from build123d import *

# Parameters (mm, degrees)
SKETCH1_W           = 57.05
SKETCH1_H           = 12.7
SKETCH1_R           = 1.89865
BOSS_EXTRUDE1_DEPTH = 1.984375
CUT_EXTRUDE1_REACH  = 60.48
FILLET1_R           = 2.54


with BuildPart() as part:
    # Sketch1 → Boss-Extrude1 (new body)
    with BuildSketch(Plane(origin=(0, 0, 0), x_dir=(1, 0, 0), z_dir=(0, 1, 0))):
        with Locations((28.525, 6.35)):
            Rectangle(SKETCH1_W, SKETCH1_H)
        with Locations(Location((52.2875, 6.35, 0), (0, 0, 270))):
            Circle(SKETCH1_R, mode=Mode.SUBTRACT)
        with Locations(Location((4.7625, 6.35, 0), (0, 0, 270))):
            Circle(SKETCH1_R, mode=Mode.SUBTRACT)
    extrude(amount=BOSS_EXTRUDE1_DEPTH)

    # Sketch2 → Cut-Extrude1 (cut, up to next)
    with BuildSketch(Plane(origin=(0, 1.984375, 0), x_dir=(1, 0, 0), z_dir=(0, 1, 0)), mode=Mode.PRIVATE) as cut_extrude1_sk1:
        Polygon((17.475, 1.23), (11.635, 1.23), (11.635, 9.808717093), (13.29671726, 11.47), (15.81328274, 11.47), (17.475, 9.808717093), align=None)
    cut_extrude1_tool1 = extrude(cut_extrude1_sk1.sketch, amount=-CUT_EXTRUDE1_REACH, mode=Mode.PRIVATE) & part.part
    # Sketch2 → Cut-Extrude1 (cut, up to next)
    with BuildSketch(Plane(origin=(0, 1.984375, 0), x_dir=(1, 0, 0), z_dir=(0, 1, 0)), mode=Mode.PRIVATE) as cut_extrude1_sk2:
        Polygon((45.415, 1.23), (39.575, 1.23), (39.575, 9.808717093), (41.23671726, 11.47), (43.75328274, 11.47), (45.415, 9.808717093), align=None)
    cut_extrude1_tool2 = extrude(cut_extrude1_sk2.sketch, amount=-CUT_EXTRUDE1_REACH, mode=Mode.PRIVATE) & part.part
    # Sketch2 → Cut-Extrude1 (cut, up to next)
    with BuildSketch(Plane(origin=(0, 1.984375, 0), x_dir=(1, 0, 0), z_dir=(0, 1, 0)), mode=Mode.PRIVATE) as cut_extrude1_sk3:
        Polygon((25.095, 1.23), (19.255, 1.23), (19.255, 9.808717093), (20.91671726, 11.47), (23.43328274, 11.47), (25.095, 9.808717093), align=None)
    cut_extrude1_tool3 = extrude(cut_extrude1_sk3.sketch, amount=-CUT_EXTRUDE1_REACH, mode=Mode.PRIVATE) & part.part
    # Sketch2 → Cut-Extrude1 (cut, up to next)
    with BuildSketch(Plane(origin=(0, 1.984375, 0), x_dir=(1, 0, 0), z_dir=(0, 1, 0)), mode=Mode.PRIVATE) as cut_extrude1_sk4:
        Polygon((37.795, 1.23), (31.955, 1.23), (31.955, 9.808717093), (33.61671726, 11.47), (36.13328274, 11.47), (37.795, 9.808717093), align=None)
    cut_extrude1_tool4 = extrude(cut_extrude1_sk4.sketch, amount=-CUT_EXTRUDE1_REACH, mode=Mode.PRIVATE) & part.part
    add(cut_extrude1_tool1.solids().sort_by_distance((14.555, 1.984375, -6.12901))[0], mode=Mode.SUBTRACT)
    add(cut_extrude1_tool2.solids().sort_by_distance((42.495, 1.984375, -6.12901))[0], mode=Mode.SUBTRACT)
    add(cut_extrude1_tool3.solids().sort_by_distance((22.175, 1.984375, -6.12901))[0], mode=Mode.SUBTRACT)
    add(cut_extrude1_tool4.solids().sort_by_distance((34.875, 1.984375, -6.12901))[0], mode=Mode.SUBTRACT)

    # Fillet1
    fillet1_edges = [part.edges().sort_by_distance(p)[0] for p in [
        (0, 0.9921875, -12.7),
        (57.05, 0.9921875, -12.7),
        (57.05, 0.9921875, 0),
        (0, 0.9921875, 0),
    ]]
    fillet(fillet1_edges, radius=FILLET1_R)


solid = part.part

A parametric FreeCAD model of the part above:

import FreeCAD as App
import Part
import Sketcher
from FreeCAD import Vector
Q = App.Units.Quantity


def edges_at(feature, points):
    """Names of the edges that pass closest to the given points."""
    edges = feature.Shape.Edges
    near = lambda p: min(range(len(edges)), key=lambda i: edges[i].distToShape(Part.Vertex(*p))[0])
    return sorted({f"Edge{near(p) + 1}" for p in points})


def add_polygon(sketch, points):
    """Adds a closed chain of lines whose ends are joined by coincident constraints."""
    first, n = sketch.GeometryCount, len(points)
    for a, b in zip(points, points[1:] + points[:1]):
        sketch.addGeometry(Part.LineSegment(App.Vector(*a, 0), App.Vector(*b, 0)), False)
    for i in range(n):
        sketch.addConstraint(Sketcher.Constraint("Coincident", first + i, 2, first + (i + 1) % n, 1))

doc = App.newDocument("Part")
params = doc.addObject("Spreadsheet::Sheet", "Params")
for row, (alias, value) in enumerate([
    ("sketch1_height", "0.5 in"),
    ("pad1_length", "0.078125 in"),
    ("fillet_radius", "0.1 in"),
], start=1):
    params.set(f"A{row}", alias)
    params.set(f"B{row}", "=" + value)
    params.setAlias(f"B{row}", alias)

body = doc.addObject("PartDesign::Body", "Body")

# Sketch on XZ plane
sketch1 = body.newObject("Sketcher::SketchObject", "Sketch")
sketch1.AttachmentSupport = (doc.getObject("XZ_Plane"), [""])
sketch1.MapMode = "FlatFace"
add_polygon(sketch1, [(0, -12.7), (0, 0), (57, 0), (57, -12.7)])  # lines 0-3
sketch1.addGeometry(Part.Circle(Vector(4.8, -6.3, 0), Vector(0, 0, 1), 1.9), False)  # 4
sketch1.addGeometry(Part.Circle(Vector(52.3, -6.3, 0), Vector(0, 0, 1), 1.9), False)  # 5
sketch1.addConstraint([
    Sketcher.Constraint("Vertical", 0),
    Sketcher.Constraint("Horizontal", 1),
    Sketcher.Constraint("Vertical", 2),
    Sketcher.Constraint("Horizontal", 3),
    Sketcher.Constraint("Coincident", 0, 2, -1, 1),
    Sketcher.Constraint("Equal", 4, 5),
    Sketcher.Constraint("Horizontal", 4, 3, 5, 3),
    Sketcher.Constraint("DistanceY", 0, 1, 0, 2, Q("0.5 in")),
    Sketcher.Constraint("Diameter", 4, Q("0.1495 in")),
    Sketcher.Constraint("DistanceY", 4, 3, -1, 1, Q("0.25 in")),
    Sketcher.Constraint("DistanceX", -1, 1, 4, 3, Q("0.1875 in")),
    Sketcher.Constraint("DistanceX", 5, 3, 1, 2, Q("0.1875 in")),
    Sketcher.Constraint("DistanceX", 1, 1, 1, 2, Q("57.05 mm")),
])
sketch1.setExpression("Constraints[11]", "Params.sketch1_height")
pad1 = body.newObject("PartDesign::Pad", "Pad")
pad1.Profile = sketch1
pad1.setExpression("Length", "Params.pad1_length")
pad1.Reversed = True

# Sketch on XZ plane
sketch2 = body.newObject("Sketcher::SketchObject", "Sketch001")
sketch2.AttachmentSupport = (doc.getObject("XZ_Plane"), [""])
sketch2.MapMode = "FlatFace"
sketch2.AttachmentOffset = App.Placement(Vector(0, 0, -0.078125 * 25.4), App.Rotation())
add_polygon(sketch2, [(11.6, -1.2), (17.5, -1.2), (17.5, -9.8), (15.8, -11.5), (13.3, -11.5), (11.6, -9.8)])  # lines 0-5
sketch2.addConstraint([
    Sketcher.Constraint("Horizontal", 0),
    Sketcher.Constraint("Vertical", 1),
    Sketcher.Constraint("Horizontal", 3),
    Sketcher.Constraint("Vertical", 5),
    Sketcher.Constraint("Horizontal", 1, 2, 4, 2),
    Sketcher.Constraint("Equal", 2, 4),
    Sketcher.Constraint("DistanceX", 0, 1, 0, 2, Q("5.84 mm")),
    Sketcher.Constraint("DistanceX", -1, 1, 0, 2, Q("17.475 mm")),
    Sketcher.Constraint("DistanceY", 0, 2, -1, 1, Q("1.23 mm")),
    Sketcher.Constraint("DistanceY", 2, 2, -1, 1, Q("11.47 mm")),
    Sketcher.Constraint("DistanceX", 3, 2, 3, 1, Q("2.516565 mm")),
    Sketcher.Constraint("DistanceY", 1, 2, 1, 1, Q("8.578717 mm")),
])
pocket1 = body.newObject("PartDesign::Pocket", "Pocket")
pocket1.Profile = sketch2
pocket1.Type = "UpToFirst"
pocket1.Reversed = True

# Sketch on XZ plane
sketch3 = body.newObject("Sketcher::SketchObject", "Sketch002")
sketch3.AttachmentSupport = (doc.getObject("XZ_Plane"), [""])
sketch3.MapMode = "FlatFace"
sketch3.AttachmentOffset = App.Placement(Vector(0, 0, -0.078125 * 25.4), App.Rotation())
add_polygon(sketch3, [(39.6, -1.2), (45.4, -1.2), (45.4, -9.8), (43.8, -11.5), (41.2, -11.5), (39.6, -9.8)])  # lines 0-5
sketch3.addConstraint([
    Sketcher.Constraint("Horizontal", 0),
    Sketcher.Constraint("Vertical", 1),
    Sketcher.Constraint("Horizontal", 3),
    Sketcher.Constraint("Vertical", 5),
    Sketcher.Constraint("Horizontal", 1, 2, 4, 2),
    Sketcher.Constraint("Equal", 2, 4),
    Sketcher.Constraint("DistanceX", 0, 1, 0, 2, Q("5.84 mm")),
    Sketcher.Constraint("DistanceX", -1, 1, 0, 2, Q("45.415 mm")),
    Sketcher.Constraint("DistanceY", 0, 2, -1, 1, Q("1.23 mm")),
    Sketcher.Constraint("DistanceY", 2, 2, -1, 1, Q("11.47 mm")),
    Sketcher.Constraint("DistanceX", 3, 2, 3, 1, Q("2.516565 mm")),
    Sketcher.Constraint("DistanceY", 1, 2, 1, 1, Q("8.578717 mm")),
])
pocket2 = body.newObject("PartDesign::Pocket", "Pocket001")
pocket2.Profile = sketch3
pocket2.Type = "UpToFirst"
pocket2.Reversed = True

# Sketch on XZ plane
sketch4 = body.newObject("Sketcher::SketchObject", "Sketch003")
sketch4.AttachmentSupport = (doc.getObject("XZ_Plane"), [""])
sketch4.MapMode = "FlatFace"
sketch4.AttachmentOffset = App.Placement(Vector(0, 0, -0.078125 * 25.4), App.Rotation())
add_polygon(sketch4, [(19.3, -1.2), (25.1, -1.2), (25.1, -9.8), (23.4, -11.5), (20.9, -11.5), (19.3, -9.8)])  # lines 0-5
sketch4.addConstraint([
    Sketcher.Constraint("Horizontal", 0),
    Sketcher.Constraint("Vertical", 1),
    Sketcher.Constraint("Horizontal", 3),
    Sketcher.Constraint("Vertical", 5),
    Sketcher.Constraint("Horizontal", 1, 2, 4, 2),
    Sketcher.Constraint("Equal", 2, 4),
    Sketcher.Constraint("DistanceX", 0, 1, 0, 2, Q("5.84 mm")),
    Sketcher.Constraint("DistanceX", -1, 1, 0, 2, Q("25.095 mm")),
    Sketcher.Constraint("DistanceY", 0, 2, -1, 1, Q("1.23 mm")),
    Sketcher.Constraint("DistanceY", 2, 2, -1, 1, Q("11.47 mm")),
    Sketcher.Constraint("DistanceX", 3, 2, 3, 1, Q("2.516565 mm")),
    Sketcher.Constraint("DistanceY", 1, 2, 1, 1, Q("8.578717 mm")),
])
pocket3 = body.newObject("PartDesign::Pocket", "Pocket002")
pocket3.Profile = sketch4
pocket3.Type = "UpToFirst"
pocket3.Reversed = True

# Sketch on XZ plane
sketch5 = body.newObject("Sketcher::SketchObject", "Sketch004")
sketch5.AttachmentSupport = (doc.getObject("XZ_Plane"), [""])
sketch5.MapMode = "FlatFace"
sketch5.AttachmentOffset = App.Placement(Vector(0, 0, -0.078125 * 25.4), App.Rotation())
add_polygon(sketch5, [(32, -1.2), (37.8, -1.2), (37.8, -9.8), (36.1, -11.5), (33.6, -11.5), (32, -9.8)])  # lines 0-5
sketch5.addConstraint([
    Sketcher.Constraint("Horizontal", 0),
    Sketcher.Constraint("Vertical", 1),
    Sketcher.Constraint("Horizontal", 3),
    Sketcher.Constraint("Vertical", 5),
    Sketcher.Constraint("Horizontal", 1, 2, 4, 2),
    Sketcher.Constraint("Equal", 2, 4),
    Sketcher.Constraint("DistanceX", 0, 1, 0, 2, Q("5.84 mm")),
    Sketcher.Constraint("DistanceX", -1, 1, 0, 2, Q("37.795 mm")),
    Sketcher.Constraint("DistanceY", 0, 2, -1, 1, Q("1.23 mm")),
    Sketcher.Constraint("DistanceY", 2, 2, -1, 1, Q("11.47 mm")),
    Sketcher.Constraint("DistanceX", 3, 2, 3, 1, Q("2.516565 mm")),
    Sketcher.Constraint("DistanceY", 1, 2, 1, 1, Q("8.578717 mm")),
])
pocket4 = body.newObject("PartDesign::Pocket", "Pocket003")
pocket4.Profile = sketch5
pocket4.Type = "UpToFirst"
pocket4.Reversed = True
doc.recompute()

fillet = body.newObject("PartDesign::Fillet", "Fillet")
fillet.Base = (pocket4, edges_at(pocket4, [
    (0, 0.992, -12.7),
    (57.05, 0.992, -12.7),
    (57.05, 0.992, 0),
    (0, 0.992, 0),
]))
fillet.setExpression("Radius", "Params.fillet_radius")

doc.recompute()
